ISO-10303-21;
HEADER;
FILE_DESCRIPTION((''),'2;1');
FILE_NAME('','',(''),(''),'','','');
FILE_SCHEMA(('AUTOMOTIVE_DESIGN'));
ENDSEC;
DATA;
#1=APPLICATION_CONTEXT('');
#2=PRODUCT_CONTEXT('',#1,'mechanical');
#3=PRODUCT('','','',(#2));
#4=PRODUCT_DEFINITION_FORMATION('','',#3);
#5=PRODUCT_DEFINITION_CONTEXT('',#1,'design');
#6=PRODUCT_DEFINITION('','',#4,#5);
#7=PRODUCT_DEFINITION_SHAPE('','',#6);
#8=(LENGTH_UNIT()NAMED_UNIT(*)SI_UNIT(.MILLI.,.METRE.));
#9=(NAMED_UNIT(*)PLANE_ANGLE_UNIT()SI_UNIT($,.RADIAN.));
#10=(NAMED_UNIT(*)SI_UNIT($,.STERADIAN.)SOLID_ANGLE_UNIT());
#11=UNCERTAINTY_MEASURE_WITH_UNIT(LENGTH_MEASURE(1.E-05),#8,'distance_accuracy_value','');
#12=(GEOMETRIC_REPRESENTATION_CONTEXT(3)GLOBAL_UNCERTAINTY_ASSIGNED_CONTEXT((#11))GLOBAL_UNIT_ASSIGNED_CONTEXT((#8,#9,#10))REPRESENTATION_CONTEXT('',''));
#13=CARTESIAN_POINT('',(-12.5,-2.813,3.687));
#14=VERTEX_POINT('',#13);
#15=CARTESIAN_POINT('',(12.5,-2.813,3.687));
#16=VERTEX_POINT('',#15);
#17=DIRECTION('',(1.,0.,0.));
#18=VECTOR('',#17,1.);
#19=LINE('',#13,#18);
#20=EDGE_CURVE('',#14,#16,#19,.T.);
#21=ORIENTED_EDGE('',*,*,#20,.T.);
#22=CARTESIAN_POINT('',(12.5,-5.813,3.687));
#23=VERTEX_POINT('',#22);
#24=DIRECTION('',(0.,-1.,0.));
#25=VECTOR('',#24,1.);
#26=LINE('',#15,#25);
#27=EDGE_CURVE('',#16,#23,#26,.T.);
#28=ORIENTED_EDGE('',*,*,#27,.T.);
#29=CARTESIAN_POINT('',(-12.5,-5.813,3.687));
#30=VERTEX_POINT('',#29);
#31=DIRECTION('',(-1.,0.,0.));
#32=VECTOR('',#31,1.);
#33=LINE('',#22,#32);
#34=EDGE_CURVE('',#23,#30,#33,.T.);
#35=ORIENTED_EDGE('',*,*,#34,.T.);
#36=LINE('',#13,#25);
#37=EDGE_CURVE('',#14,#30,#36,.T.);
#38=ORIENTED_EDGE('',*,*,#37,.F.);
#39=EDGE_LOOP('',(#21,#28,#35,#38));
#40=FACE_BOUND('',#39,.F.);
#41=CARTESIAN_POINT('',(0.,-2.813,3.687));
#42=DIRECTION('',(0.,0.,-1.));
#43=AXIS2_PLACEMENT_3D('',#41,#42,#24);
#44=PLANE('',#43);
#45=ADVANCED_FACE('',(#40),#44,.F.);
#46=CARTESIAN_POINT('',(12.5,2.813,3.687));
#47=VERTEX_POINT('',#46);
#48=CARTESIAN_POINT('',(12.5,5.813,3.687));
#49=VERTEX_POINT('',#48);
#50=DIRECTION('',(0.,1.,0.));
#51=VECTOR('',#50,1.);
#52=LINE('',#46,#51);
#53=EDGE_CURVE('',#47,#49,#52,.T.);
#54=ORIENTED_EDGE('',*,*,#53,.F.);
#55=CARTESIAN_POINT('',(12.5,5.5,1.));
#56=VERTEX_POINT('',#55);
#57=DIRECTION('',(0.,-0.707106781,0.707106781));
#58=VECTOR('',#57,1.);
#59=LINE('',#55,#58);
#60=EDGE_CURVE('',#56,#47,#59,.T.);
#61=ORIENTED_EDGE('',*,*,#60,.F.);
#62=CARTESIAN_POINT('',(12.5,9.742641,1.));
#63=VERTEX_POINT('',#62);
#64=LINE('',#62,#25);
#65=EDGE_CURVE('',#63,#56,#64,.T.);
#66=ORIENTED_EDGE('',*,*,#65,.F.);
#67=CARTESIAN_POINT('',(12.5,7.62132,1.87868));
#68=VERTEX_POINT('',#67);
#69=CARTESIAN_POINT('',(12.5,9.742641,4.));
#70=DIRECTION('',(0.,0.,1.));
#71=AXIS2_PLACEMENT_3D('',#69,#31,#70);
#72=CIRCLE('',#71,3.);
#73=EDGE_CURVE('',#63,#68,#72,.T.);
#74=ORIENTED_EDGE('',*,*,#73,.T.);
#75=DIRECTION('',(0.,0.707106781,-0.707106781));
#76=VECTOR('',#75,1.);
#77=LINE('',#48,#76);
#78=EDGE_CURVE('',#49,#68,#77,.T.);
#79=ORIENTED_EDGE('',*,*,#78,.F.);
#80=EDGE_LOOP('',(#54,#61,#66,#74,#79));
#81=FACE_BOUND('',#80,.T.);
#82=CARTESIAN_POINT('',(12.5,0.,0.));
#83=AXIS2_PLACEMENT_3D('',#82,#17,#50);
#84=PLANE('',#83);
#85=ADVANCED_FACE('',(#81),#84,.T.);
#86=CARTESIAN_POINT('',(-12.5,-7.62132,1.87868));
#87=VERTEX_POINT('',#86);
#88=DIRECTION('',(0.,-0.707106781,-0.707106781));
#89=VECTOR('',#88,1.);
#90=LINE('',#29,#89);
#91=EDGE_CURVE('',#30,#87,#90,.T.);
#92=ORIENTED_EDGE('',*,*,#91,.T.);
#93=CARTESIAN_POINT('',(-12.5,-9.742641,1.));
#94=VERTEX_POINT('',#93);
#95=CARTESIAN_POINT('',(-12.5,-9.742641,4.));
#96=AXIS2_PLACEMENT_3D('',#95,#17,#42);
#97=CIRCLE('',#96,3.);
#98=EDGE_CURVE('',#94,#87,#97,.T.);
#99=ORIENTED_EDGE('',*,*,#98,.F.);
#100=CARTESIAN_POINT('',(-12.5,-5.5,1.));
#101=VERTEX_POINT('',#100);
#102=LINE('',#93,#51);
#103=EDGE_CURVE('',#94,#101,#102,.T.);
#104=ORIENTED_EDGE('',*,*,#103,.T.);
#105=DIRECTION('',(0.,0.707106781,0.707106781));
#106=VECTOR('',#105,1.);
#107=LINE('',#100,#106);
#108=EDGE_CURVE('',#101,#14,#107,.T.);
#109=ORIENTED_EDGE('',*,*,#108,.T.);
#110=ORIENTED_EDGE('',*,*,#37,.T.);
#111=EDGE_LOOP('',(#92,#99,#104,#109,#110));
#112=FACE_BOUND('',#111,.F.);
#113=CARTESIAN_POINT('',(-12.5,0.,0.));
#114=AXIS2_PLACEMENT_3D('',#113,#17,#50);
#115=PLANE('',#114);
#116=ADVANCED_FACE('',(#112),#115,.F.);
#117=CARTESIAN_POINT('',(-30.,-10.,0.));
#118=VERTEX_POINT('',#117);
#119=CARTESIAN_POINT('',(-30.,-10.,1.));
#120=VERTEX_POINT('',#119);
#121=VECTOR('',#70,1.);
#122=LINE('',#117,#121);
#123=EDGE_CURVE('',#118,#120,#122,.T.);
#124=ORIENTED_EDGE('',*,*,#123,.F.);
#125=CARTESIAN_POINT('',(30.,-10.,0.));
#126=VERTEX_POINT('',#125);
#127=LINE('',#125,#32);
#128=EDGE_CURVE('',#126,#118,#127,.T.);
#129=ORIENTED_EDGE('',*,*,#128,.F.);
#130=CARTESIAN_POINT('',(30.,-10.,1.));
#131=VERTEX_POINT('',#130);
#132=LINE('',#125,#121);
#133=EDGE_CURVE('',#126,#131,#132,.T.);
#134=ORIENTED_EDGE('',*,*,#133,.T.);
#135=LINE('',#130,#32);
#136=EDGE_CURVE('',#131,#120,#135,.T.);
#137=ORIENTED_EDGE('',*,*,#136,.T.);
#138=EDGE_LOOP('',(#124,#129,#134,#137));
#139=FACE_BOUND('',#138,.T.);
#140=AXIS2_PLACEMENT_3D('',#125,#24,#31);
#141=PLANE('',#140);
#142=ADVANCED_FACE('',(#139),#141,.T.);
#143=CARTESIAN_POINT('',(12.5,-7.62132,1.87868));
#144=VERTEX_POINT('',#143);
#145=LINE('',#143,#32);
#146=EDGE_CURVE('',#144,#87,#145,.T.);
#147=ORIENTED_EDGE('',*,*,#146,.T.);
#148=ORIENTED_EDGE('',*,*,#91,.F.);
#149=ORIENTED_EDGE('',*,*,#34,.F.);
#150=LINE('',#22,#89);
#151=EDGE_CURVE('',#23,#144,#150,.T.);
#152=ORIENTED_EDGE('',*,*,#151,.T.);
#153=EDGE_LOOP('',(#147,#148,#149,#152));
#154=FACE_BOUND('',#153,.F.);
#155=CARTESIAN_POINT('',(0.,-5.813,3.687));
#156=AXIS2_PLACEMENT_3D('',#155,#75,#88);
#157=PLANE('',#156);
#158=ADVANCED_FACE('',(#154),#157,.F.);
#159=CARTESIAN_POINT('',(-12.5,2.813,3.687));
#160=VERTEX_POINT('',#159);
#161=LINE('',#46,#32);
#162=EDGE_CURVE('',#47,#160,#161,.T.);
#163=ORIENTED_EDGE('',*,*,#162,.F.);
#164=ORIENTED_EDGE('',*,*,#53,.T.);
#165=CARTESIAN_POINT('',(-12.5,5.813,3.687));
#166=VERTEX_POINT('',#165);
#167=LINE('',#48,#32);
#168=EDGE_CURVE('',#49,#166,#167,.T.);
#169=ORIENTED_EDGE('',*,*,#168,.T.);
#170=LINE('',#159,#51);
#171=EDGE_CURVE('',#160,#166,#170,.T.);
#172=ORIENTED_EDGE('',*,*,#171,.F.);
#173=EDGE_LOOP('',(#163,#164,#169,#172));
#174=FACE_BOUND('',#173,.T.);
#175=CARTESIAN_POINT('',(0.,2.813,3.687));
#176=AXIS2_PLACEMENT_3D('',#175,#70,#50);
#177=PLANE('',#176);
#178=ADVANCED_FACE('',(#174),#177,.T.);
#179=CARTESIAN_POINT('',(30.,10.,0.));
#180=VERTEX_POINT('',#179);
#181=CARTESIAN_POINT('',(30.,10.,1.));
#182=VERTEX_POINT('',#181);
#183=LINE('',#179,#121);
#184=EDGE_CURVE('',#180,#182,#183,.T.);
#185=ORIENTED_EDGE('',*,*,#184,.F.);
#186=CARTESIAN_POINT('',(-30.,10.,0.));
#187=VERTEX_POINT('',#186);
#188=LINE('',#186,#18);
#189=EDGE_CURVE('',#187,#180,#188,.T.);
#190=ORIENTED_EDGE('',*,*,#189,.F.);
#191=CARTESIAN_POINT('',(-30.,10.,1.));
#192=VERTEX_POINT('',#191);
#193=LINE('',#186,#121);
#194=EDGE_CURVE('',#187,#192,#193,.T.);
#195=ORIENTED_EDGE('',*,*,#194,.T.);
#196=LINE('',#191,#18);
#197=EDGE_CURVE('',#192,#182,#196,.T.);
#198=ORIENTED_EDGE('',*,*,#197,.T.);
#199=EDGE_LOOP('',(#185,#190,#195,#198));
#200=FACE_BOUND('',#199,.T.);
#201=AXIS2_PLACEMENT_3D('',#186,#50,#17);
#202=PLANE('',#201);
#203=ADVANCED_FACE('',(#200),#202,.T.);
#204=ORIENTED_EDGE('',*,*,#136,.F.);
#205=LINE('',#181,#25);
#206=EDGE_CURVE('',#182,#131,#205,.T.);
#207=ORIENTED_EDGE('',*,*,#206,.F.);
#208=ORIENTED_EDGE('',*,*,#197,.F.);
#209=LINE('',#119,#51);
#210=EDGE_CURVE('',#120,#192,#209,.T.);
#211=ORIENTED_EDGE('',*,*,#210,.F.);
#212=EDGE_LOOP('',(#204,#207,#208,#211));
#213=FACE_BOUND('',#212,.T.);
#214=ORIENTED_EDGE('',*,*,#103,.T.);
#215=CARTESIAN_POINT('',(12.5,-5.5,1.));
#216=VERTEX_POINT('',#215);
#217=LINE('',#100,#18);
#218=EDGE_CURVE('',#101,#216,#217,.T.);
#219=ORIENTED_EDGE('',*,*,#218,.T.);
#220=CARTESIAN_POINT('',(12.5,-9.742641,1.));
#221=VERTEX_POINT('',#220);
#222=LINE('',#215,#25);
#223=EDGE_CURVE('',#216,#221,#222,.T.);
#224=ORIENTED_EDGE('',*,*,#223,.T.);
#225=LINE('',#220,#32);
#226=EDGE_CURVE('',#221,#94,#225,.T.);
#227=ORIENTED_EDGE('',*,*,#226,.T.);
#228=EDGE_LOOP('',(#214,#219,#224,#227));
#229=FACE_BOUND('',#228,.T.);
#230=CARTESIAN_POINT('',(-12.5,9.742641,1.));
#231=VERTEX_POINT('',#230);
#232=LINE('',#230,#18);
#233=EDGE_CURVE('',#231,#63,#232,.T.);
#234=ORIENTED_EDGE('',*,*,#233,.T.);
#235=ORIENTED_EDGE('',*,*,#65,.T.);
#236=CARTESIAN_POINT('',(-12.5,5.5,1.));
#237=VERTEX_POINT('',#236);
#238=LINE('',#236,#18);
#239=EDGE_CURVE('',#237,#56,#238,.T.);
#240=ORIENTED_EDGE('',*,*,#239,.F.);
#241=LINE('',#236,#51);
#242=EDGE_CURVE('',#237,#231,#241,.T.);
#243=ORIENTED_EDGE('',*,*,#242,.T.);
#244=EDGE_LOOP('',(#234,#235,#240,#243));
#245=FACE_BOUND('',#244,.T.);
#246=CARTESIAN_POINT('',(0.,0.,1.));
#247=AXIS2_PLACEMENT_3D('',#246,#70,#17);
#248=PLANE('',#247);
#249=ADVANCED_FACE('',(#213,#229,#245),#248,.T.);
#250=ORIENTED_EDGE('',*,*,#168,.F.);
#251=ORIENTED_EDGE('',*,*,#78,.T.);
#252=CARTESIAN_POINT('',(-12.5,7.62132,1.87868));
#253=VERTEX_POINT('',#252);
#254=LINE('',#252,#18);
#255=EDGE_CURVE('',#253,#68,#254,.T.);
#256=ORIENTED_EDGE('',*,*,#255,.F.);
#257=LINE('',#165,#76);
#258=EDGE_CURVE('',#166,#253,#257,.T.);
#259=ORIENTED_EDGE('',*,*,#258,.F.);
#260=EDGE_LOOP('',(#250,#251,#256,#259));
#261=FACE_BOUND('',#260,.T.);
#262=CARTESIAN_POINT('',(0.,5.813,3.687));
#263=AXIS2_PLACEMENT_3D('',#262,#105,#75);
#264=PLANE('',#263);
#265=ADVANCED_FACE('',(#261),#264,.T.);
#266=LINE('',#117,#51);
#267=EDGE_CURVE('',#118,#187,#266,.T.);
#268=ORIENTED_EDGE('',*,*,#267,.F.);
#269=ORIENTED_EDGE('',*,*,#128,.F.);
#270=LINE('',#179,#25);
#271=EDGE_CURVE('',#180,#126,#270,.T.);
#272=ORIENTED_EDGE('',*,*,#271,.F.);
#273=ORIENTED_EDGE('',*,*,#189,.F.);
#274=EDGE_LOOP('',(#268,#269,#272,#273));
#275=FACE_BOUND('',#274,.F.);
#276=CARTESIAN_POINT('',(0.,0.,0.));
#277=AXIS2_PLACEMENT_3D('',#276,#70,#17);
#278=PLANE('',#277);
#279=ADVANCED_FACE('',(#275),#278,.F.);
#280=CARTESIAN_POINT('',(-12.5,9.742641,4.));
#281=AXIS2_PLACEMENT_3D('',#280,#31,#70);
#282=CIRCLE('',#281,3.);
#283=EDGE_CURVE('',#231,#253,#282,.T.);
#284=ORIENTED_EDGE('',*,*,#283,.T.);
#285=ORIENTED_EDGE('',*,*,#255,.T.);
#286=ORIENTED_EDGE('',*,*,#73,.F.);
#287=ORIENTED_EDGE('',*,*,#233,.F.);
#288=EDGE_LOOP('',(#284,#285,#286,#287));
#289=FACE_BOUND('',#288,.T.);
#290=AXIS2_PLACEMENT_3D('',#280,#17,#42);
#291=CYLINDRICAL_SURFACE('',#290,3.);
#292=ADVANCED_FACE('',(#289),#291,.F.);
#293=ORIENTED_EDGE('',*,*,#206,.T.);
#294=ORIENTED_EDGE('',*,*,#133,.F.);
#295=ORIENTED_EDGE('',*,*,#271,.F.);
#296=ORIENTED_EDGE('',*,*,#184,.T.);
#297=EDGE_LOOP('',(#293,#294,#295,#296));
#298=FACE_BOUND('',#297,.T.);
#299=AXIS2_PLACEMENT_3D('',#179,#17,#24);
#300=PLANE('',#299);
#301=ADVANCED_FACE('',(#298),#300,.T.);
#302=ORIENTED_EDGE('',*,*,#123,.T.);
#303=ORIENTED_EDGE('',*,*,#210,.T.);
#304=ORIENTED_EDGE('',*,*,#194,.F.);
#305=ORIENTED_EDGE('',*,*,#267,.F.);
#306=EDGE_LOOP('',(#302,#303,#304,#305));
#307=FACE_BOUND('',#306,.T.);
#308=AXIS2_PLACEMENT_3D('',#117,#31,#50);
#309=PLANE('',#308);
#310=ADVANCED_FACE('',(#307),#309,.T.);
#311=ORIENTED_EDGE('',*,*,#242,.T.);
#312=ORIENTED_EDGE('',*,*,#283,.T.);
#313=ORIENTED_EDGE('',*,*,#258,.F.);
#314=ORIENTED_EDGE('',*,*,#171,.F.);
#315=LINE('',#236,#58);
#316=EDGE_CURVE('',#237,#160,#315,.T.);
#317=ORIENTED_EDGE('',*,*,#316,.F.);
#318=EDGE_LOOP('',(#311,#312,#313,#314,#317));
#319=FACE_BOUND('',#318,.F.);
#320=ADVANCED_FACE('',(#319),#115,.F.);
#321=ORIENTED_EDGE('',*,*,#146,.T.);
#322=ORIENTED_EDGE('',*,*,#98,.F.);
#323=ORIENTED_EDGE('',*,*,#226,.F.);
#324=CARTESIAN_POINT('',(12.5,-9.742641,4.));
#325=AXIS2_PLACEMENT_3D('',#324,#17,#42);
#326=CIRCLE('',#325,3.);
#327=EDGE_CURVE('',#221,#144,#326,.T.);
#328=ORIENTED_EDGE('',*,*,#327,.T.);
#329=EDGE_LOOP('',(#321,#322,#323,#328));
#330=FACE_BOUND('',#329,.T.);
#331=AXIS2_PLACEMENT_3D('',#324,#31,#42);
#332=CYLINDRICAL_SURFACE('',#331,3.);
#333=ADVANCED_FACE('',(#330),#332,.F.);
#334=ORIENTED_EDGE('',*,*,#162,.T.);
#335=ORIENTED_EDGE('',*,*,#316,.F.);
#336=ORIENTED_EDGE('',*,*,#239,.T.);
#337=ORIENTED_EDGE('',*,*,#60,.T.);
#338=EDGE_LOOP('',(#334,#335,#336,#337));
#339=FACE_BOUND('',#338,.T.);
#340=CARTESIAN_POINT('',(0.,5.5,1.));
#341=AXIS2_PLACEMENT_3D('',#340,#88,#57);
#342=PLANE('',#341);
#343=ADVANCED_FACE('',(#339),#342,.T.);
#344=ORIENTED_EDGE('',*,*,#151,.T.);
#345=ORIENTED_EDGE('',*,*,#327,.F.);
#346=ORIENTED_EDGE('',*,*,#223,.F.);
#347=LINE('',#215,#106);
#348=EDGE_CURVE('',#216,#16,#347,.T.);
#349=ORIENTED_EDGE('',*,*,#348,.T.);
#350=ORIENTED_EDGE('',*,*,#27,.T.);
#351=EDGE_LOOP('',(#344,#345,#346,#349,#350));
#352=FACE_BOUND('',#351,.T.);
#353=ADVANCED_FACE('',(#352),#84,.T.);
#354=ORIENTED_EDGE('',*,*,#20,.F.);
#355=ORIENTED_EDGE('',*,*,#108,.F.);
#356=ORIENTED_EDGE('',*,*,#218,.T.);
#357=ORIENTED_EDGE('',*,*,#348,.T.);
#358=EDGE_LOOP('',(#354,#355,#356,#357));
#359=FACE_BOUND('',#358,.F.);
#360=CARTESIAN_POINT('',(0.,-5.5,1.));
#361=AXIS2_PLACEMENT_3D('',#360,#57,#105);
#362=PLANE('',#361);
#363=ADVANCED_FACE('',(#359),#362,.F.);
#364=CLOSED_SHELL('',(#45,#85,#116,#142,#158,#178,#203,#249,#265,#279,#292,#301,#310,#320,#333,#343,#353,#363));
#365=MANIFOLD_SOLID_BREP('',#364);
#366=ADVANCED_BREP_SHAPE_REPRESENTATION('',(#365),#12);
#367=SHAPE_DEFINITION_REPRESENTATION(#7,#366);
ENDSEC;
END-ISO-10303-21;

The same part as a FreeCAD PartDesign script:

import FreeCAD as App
import Part
import Sketcher


def edges_at(feature, points):
    """Names of the edges that pass closest to the given points."""
    edges = feature.Shape.Edges
    near = lambda p: min(range(len(edges)), key=lambda i: edges[i].distToShape(Part.Vertex(*p))[0])
    return sorted({f"Edge{near(p) + 1}" for p in points})

doc = App.newDocument("Part")
params = doc.addObject("Spreadsheet::Sheet", "Params")
for row, (alias, value) in enumerate([
    ("sketch1_width", "60 mm"),
    ("sketch1_height", "20 mm"),
    ("pad1_length", "1 mm"),
    ("sketch2_width", "3 mm"),
    ("sketch2_length", "3.8 mm"),
    ("pad2_length", "25 mm"),
    ("fillet_radius", "3 mm"),
], start=1):
    params.set(f"A{row}", alias)
    params.set(f"B{row}", "=" + value)
    params.setAlias(f"B{row}", alias)

body = doc.addObject("PartDesign::Body", "Body")

sketch1 = body.newObject("Sketcher::SketchObject", "Sketch")
sketch1.AttachmentSupport = (doc.getObject("XY_Plane"), [""])
sketch1.MapMode = "FlatFace"
sketch1.addGeometry(Part.LineSegment(App.Vector(-30, -10, 0), App.Vector(30, -10, 0)), False)
sketch1.addGeometry(Part.LineSegment(App.Vector(30, -10, 0), App.Vector(30, 10, 0)), False)
sketch1.addGeometry(Part.LineSegment(App.Vector(30, 10, 0), App.Vector(-30, 10, 0)), False)
sketch1.addGeometry(Part.LineSegment(App.Vector(-30, 10, 0), App.Vector(-30, -10, 0)), False)
sketch1.addConstraint(Sketcher.Constraint("Coincident", 0, 2, 1, 1))
sketch1.addConstraint(Sketcher.Constraint("Coincident", 1, 2, 2, 1))
sketch1.addConstraint(Sketcher.Constraint("Coincident", 2, 2, 3, 1))
sketch1.addConstraint(Sketcher.Constraint("Coincident", 3, 2, 0, 1))
sketch1.addConstraint(Sketcher.Constraint("Horizontal", 0))
sketch1.addConstraint(Sketcher.Constraint("Vertical", 1))
sketch1.addConstraint(Sketcher.Constraint("Horizontal", 2))
sketch1.addConstraint(Sketcher.Constraint("Vertical", 3))
sketch1.addConstraint(Sketcher.Constraint("Symmetric", 0, 2, 2, 2, -1, 1))
sketch1.addConstraint(Sketcher.Constraint("DistanceX", 0, 1, 0, 2, 60.0))
sketch1.addConstraint(Sketcher.Constraint("DistanceY", 1, 1, 1, 2, 20.0))
sketch1.setExpression("Constraints[9]", "Params.sketch1_width")
sketch1.setExpression("Constraints[10]", "Params.sketch1_height")
pad1 = body.newObject("PartDesign::Pad", "Pad")
pad1.Profile = sketch1
pad1.setExpression("Length", "Params.pad1_length")

sketch2 = body.newObject("Sketcher::SketchObject", "Sketch001")
sketch2.AttachmentSupport = (doc.getObject("YZ_Plane"), [""])
sketch2.MapMode = "FlatFace"
sketch2.addGeometry(Part.LineSegment(App.Vector(2.8, 3.7, 0), App.Vector(5.5, 1, 0)), False)
sketch2.addGeometry(Part.LineSegment(App.Vector(5.5, 1, 0), App.Vector(8.5, 1, 0)), False)
sketch2.addGeometry(Part.LineSegment(App.Vector(8.5, 1, 0), App.Vector(5.8, 3.7, 0)), False)
sketch2.addGeometry(Part.LineSegment(App.Vector(5.8, 3.7, 0), App.Vector(2.8, 3.7, 0)), False)
sketch2.addGeometry(Part.LineSegment(App.Vector(-8.5, 1, 0), App.Vector(-5.5, 1, 0)), False)
sketch2.addGeometry(Part.LineSegment(App.Vector(-5.5, 1, 0), App.Vector(-2.8, 3.7, 0)), False)
sketch2.addGeometry(Part.LineSegment(App.Vector(-2.8, 3.7, 0), App.Vector(-5.8, 3.7, 0)), False)
sketch2.addGeometry(Part.LineSegment(App.Vector(-5.8, 3.7, 0), App.Vector(-8.5, 1, 0)), False)
sketch2.addConstraint(Sketcher.Constraint("Coincident", 0, 2, 1, 1))
sketch2.addConstraint(Sketcher.Constraint("Coincident", 1, 2, 2, 1))
sketch2.addConstraint(Sketcher.Constraint("Coincident", 2, 2, 3, 1))
sketch2.addConstraint(Sketcher.Constraint("Coincident", 3, 2, 0, 1))
sketch2.addConstraint(Sketcher.Constraint("Coincident", 4, 2, 5, 1))
sketch2.addConstraint(Sketcher.Constraint("Coincident", 5, 2, 6, 1))
sketch2.addConstraint(Sketcher.Constraint("Coincident", 6, 2, 7, 1))
sketch2.addConstraint(Sketcher.Constraint("Coincident", 7, 2, 4, 1))
sketch2.addConstraint(Sketcher.Constraint("Horizontal", 1))
sketch2.addConstraint(Sketcher.Constraint("Horizontal", 3))
sketch2.addConstraint(Sketcher.Constraint("Horizontal", 4))
sketch2.addConstraint(Sketcher.Constraint("Horizontal", 6))
sketch2.addConstraint(Sketcher.Constraint("Symmetric", 0, 2, 4, 2, -2))
sketch2.addConstraint(Sketcher.Constraint("Symmetric", 3, 2, 5, 2, -2))
sketch2.addConstraint(Sketcher.Constraint("Parallel", 0, 2))
sketch2.addConstraint(Sketcher.Constraint("Perpendicular", 2, 5))
sketch2.addConstraint(Sketcher.Constraint("Parallel", 5, 7))
sketch2.addConstraint(Sketcher.Constraint("Equal", 3, 4))
sketch2.addConstraint(Sketcher.Constraint("DistanceX", 1, 1, 1, 2, 3.0))
sketch2.addConstraint(Sketcher.Constraint("DistanceY", -1, 1, 0, 2, 1.0))
sketch2.addConstraint(Sketcher.Constraint("DistanceX", 4, 2, 0, 2, 11.0))
sketch2.addConstraint(Sketcher.Constraint("Distance", 0, 3.8))
sketch2.setExpression("Constraints[18]", "Params.sketch2_width")
sketch2.setExpression("Constraints[21]", "Params.sketch2_length")
pad2 = body.newObject("PartDesign::Pad", "Pad001")
pad2.Profile = sketch2
pad2.setExpression("Length", "Params.pad2_length")
pad2.Midplane = True
doc.recompute()

fillet = body.newObject("PartDesign::Fillet", "Fillet")
fillet.Base = (pad2, edges_at(pad2, [(0, -8.5, 1), (0, 8.5, 1)]))
fillet.setExpression("Radius", "Params.fillet_radius")

doc.recompute()
